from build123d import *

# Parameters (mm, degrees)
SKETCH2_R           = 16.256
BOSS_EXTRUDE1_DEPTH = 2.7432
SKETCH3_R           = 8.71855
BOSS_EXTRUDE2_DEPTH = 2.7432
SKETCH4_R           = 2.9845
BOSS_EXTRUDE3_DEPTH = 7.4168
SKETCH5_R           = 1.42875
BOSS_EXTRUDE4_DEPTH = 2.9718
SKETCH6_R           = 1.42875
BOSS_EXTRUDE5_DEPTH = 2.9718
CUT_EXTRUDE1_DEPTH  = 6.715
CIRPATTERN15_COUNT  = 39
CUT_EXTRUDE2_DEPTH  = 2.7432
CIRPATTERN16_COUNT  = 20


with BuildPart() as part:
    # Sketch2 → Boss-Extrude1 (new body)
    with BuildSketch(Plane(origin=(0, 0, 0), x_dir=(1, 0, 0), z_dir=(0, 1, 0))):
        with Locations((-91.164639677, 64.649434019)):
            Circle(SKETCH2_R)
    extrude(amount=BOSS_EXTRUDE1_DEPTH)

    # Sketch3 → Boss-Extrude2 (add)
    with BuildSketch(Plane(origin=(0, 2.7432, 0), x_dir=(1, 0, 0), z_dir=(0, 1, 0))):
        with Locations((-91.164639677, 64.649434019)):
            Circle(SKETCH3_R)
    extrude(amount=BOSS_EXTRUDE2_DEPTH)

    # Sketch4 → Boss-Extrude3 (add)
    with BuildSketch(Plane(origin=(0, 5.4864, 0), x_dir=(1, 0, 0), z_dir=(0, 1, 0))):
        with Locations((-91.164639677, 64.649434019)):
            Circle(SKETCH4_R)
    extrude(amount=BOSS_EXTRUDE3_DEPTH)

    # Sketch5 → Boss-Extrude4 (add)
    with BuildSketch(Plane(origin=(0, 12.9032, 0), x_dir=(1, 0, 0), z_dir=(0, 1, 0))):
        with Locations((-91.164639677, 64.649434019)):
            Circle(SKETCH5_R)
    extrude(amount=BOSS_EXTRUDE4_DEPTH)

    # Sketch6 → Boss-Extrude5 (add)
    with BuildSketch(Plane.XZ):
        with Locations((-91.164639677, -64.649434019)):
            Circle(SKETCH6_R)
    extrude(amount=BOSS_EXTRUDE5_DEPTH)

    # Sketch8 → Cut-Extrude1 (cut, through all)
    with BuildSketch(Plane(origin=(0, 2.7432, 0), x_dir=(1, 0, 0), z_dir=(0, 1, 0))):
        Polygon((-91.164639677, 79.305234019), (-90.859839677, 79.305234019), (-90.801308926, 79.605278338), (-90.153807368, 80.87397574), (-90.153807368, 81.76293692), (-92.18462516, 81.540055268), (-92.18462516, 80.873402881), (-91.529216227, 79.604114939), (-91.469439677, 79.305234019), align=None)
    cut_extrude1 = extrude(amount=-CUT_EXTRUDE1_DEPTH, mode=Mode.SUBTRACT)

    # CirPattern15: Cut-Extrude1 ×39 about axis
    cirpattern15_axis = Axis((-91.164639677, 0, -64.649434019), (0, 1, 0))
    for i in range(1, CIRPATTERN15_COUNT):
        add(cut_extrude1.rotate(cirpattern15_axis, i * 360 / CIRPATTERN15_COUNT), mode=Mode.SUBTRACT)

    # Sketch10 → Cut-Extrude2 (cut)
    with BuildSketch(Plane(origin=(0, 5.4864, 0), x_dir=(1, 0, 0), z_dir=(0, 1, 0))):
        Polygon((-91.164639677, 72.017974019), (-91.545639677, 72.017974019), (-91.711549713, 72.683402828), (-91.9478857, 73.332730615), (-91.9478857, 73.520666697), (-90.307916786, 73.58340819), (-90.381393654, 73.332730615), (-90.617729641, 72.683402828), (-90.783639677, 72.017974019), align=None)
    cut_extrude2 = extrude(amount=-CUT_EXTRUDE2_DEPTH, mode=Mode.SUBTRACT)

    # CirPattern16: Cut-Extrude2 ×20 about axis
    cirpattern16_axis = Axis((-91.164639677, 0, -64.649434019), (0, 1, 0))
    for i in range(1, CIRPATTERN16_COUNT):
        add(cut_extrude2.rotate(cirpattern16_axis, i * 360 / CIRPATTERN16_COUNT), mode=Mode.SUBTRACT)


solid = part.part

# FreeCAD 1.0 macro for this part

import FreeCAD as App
import Part
import Sketcher
Q = App.Units.Quantity

doc = App.newDocument("Part")
params = doc.addObject("Spreadsheet::Sheet", "Params")
for row, (alias, value) in enumerate([
    ("sketch1_diameter", "1.28 in"),
    ("pad1_length", "0.108 in"),
    ("pad2_length", "0.108 in"),
    ("sketch3_diameter", "0.235 in"),
    ("pad3_length", "0.292 in"),
    ("pad4_length", "0.117 in"),
    ("pad5_length", "0.117 in"),
    ("sketch6_width", "0.024 in"),
    ("sketch6_length", "0.012 in"),
    ("sketch7_width", "0.03 in"),
    ("sketch7_length", "0.027 in"),
    ("pocket2_length", "0.108 in"),
], start=1):
    params.set(f"A{row}", alias)
    params.set(f"B{row}", "=" + value)
    params.setAlias(f"B{row}", alias)

body = doc.addObject("PartDesign::Body", "Body")

# Sketch on XZ plane
sketch1 = body.newObject("Sketcher::SketchObject", "Sketch")
sketch1.AttachmentSupport = (doc.getObject("XZ_Plane"), [""])
sketch1.MapMode = "FlatFace"
sketch1.addGeometry(Part.Circle(App.Vector(-91, -65, 0), App.Vector(0, 0, 1), 16), False)
sketch1.addConstraint([
    Sketcher.Constraint("Diameter", 0, Q("1.28 in")),
    Sketcher.Constraint("DistanceX", 0, 3, -1, 1, 91.16464),
    Sketcher.Constraint("DistanceY", 0, 3, -1, 1, 64.649434),
])
sketch1.setExpression("Constraints[0]", "Params.sketch1_diameter")
pad1 = body.newObject("PartDesign::Pad", "Pad")
pad1.Profile = sketch1
pad1.setExpression("Length", "Params.pad1_length")
pad1.Reversed = True

# Sketch on XZ plane
sketch2 = body.newObject("Sketcher::SketchObject", "Sketch001")
sketch2.AttachmentSupport = (doc.getObject("XZ_Plane"), [""])
sketch2.MapMode = "FlatFace"
sketch2.AttachmentOffset = App.Placement(App.Vector(0, 0, -0.108 * 25.4), App.Rotation())
sketch2.addGeometry(Part.Circle(App.Vector(-91, -65, 0), App.Vector(0, 0, 1), 9), False)
sketch2.addConstraint([
    Sketcher.Constraint("Diameter", 0, Q("0.6865 in")),
    Sketcher.Constraint("DistanceX", 0, 3, -1, 1, 91.16464),
    Sketcher.Constraint("DistanceY", 0, 3, -1, 1, 64.649434),
])
pad2 = body.newObject("PartDesign::Pad", "Pad001")
pad2.Profile = sketch2
pad2.setExpression("Length", "Params.pad2_length")
pad2.Reversed = True

# Sketch on XZ plane
sketch3 = body.newObject("Sketcher::SketchObject", "Sketch002")
sketch3.AttachmentSupport = (doc.getObject("XZ_Plane"), [""])
sketch3.MapMode = "FlatFace"
sketch3.AttachmentOffset = App.Placement(App.Vector(0, 0, -0.216 * 25.4), App.Rotation())
sketch3.addGeometry(Part.Circle(App.Vector(-91.2, -64.6, 0), App.Vector(0, 0, 1), 3), False)
sketch3.addConstraint([
    Sketcher.Constraint("Diameter", 0, Q("0.235 in")),
    Sketcher.Constraint("DistanceX", 0, 3, -1, 1, 91.16464),
    Sketcher.Constraint("DistanceY", 0, 3, -1, 1, 64.649434),
])
sketch3.setExpression("Constraints[0]", "Params.sketch3_diameter")
pad3 = body.newObject("PartDesign::Pad", "Pad002")
pad3.Profile = sketch3
pad3.setExpression("Length", "Params.pad3_length")
pad3.Reversed = True

# Sketch on XZ plane
sketch4 = body.newObject("Sketcher::SketchObject", "Sketch003")
sketch4.AttachmentSupport = (doc.getObject("XZ_Plane"), [""])
sketch4.MapMode = "FlatFace"
sketch4.AttachmentOffset = App.Placement(App.Vector(0, 0, -0.508 * 25.4), App.Rotation())
sketch4.addGeometry(Part.Circle(App.Vector(-91.2, -64.6, 0), App.Vector(0, 0, 1), 1.4), False)
sketch4.addConstraint([
    Sketcher.Constraint("Diameter", 0, Q("0.1125 in")),
    Sketcher.Constraint("DistanceX", 0, 3, -1, 1, 91.16464),
    Sketcher.Constraint("DistanceY", 0, 3, -1, 1, 64.649434),
])
pad4 = body.newObject("PartDesign::Pad", "Pad003")
pad4.Profile = sketch4
pad4.setExpression("Length", "Params.pad4_length")
pad4.Reversed = True

# Sketch on XZ plane
sketch5 = body.newObject("Sketcher::SketchObject", "Sketch004")
sketch5.AttachmentSupport = (doc.getObject("XZ_Plane"), [""])
sketch5.MapMode = "FlatFace"
sketch5.addGeometry(Part.Circle(App.Vector(-91.2, -64.6, 0), App.Vector(0, 0, 1), 1.4), False)
sketch5.addConstraint([
    Sketcher.Constraint("Diameter", 0, Q("0.1125 in")),
    Sketcher.Constraint("DistanceX", 0, 3, -1, 1, 91.16464),
    Sketcher.Constraint("DistanceY", 0, 3, -1, 1, 64.649434),
])
pad5 = body.newObject("PartDesign::Pad", "Pad004")
pad5.Profile = sketch5
pad5.setExpression("Length", "Params.pad5_length")

# Sketch on XZ plane
sketch6 = body.newObject("Sketcher::SketchObject", "Sketch005")
sketch6.AttachmentSupport = (doc.getObject("XZ_Plane"), [""])
sketch6.MapMode = "FlatFace"
sketch6.AttachmentOffset = App.Placement(App.Vector(0, 0, -0.108 * 25.4), App.Rotation())
sketch6.addGeometry([
    Part.LineSegment(App.Vector(-90.86, -79.31, 0), App.Vector(-90.8, -79.61, 0)),  # 0
    Part.LineSegment(App.Vector(-90.8, -79.61, 0), App.Vector(-90.15, -80.87, 0)),  # 1
    Part.LineSegment(App.Vector(-90.15, -80.87, 0), App.Vector(-90.15, -81.76, 0)),  # 2
    Part.LineSegment(App.Vector(-90.15, -81.76, 0), App.Vector(-92.18, -81.54, 0)),  # 3
    Part.LineSegment(App.Vector(-92.18, -81.54, 0), App.Vector(-92.18, -80.87, 0)),  # 4
    Part.LineSegment(App.Vector(-92.18, -80.87, 0), App.Vector(-91.53, -79.6, 0)),  # 5
    Part.LineSegment(App.Vector(-91.53, -79.6, 0), App.Vector(-91.47, -79.31, 0)),  # 6
    Part.LineSegment(App.Vector(-91.47, -79.31, 0), App.Vector(-90.86, -79.31, 0)),  # 7
], False)
sketch6.addConstraint([
    Sketcher.Constraint("Coincident", 0, 2, 1, 1),
    Sketcher.Constraint("Coincident", 1, 2, 2, 1),
    Sketcher.Constraint("Coincident", 2, 2, 3, 1),
    Sketcher.Constraint("Coincident", 3, 2, 4, 1),
    Sketcher.Constraint("Coincident", 4, 2, 5, 1),
    Sketcher.Constraint("Coincident", 5, 2, 6, 1),
    Sketcher.Constraint("Coincident", 6, 2, 7, 1),
    Sketcher.Constraint("Coincident", 7, 2, 0, 1),
    Sketcher.Constraint("Vertical", 2),
    Sketcher.Constraint("Vertical", 4),
    Sketcher.Constraint("Horizontal", 7),
    Sketcher.Constraint("DistanceX", 7, 1, 7, 2, Q("0.024 in")),
    Sketcher.Constraint("Angle", 5, Q("62.69 deg")),
    Sketcher.Constraint("Angle", 6, Q("78.69 deg")),
    Sketcher.Constraint("Distance", 6, Q("0.012 in")),
    Sketcher.Constraint("Distance", 0, 0.3057),
    Sketcher.Constraint("DistanceY", 2, 2, 2, 1, 0.888961),
    Sketcher.Constraint("DistanceX", 0, 2, 1, 2, 0.647502),
    Sketcher.Constraint("Distance", 3, 2.043012),
    Sketcher.Constraint("DistanceY", 4, 1, 4, 2, 0.666652),
    Sketcher.Constraint("DistanceX", 0, 2, -1, 1, 90.801309),
    Sketcher.Constraint("DistanceY", 0, 2, -1, 1, 79.605278),
    Sketcher.Constraint("DistanceX", 6, 2, -1, 1, 91.46944),
    Sketcher.Constraint("DistanceY", 2, 2, 0, 2, 2.157659),
])
sketch6.setExpression("Constraints[11]", "Params.sketch6_width")
sketch6.setExpression("Constraints[14]", "Params.sketch6_length")
pocket1 = body.newObject("PartDesign::Pocket", "Pocket")
pocket1.Profile = sketch6
pocket1.Type = "ThroughAll"
pocket1.Reversed = True
doc.recompute()

datumline = body.newObject("PartDesign::Line", "DatumLine")
datumline.Placement = App.Placement(App.Vector(-91.16464, 0, -64.649434), App.Rotation(App.Vector(0, 0, 1), App.Vector(0, 1, 0)))
polarpattern = body.newObject("PartDesign::PolarPattern", "PolarPattern")
polarpattern.Originals = [pocket1]
polarpattern.Axis = (datumline, [""])
polarpattern.Angle = 360
polarpattern.Occurrences = 39
body.Tip = polarpattern

# Sketch on XZ plane
sketch7 = body.newObject("Sketcher::SketchObject", "Sketch006")
sketch7.AttachmentSupport = (doc.getObject("XZ_Plane"), [""])
sketch7.MapMode = "FlatFace"
sketch7.AttachmentOffset = App.Placement(App.Vector(0, 0, -0.216 * 25.4), App.Rotation())
sketch7.addGeometry([
    Part.LineSegment(App.Vector(-91.55, -72.02, 0), App.Vector(-90.78, -72.02, 0)),  # 0
    Part.LineSegment(App.Vector(-90.78, -72.02, 0), App.Vector(-90.62, -72.68, 0)),  # 1
    Part.LineSegment(App.Vector(-90.62, -72.68, 0), App.Vector(-90.38, -73.33, 0)),  # 2
    Part.LineSegment(App.Vector(-90.38, -73.33, 0), App.Vector(-90.31, -73.58, 0)),  # 3
    Part.LineSegment(App.Vector(-90.31, -73.58, 0), App.Vector(-91.95, -73.52, 0)),  # 4
    Part.LineSegment(App.Vector(-91.95, -73.52, 0), App.Vector(-91.95, -73.33, 0)),  # 5
    Part.LineSegment(App.Vector(-91.95, -73.33, 0), App.Vector(-91.71, -72.68, 0)),  # 6
    Part.LineSegment(App.Vector(-91.71, -72.68, 0), App.Vector(-91.55, -72.02, 0)),  # 7
], False)
sketch7.addConstraint([
    Sketcher.Constraint("Coincident", 0, 2, 1, 1),
    Sketcher.Constraint("Coincident", 1, 2, 2, 1),
    Sketcher.Constraint("Coincident", 2, 2, 3, 1),
    Sketcher.Constraint("Coincident", 3, 2, 4, 1),
    Sketcher.Constraint("Coincident", 4, 2, 5, 1),
    Sketcher.Constraint("Coincident", 5, 2, 6, 1),
    Sketcher.Constraint("Coincident", 6, 2, 7, 1),
    Sketcher.Constraint("Coincident", 7, 2, 0, 1),
    Sketcher.Constraint("Horizontal", 0),
    Sketcher.Constraint("Vertical", 5),
    Sketcher.Constraint("Horizontal", 2, 2, 5, 2),
    Sketcher.Constraint("Horizontal", 1, 2, 6, 2),
    Sketcher.Constraint("Equal", 2, 6),
    Sketcher.Constraint("Equal", 1, 7),
    Sketcher.Constraint("Angle", 1, Q("-76 deg")),
    Sketcher.Constraint("Angle", 2, Q("-70 deg")),
    Sketcher.Constraint("DistanceX", 0, 1, 0, 2, Q("0.03 in")),
    Sketcher.Constraint("Distance", 1, Q("0.027 in")),
    Sketcher.Constraint("Distance", 2, 0.691),
    Sketcher.Constraint("Distance", 4, 1.641169),
    Sketcher.Constraint("DistanceY", 5, 1, 5, 2, 0.187936),
    Sketcher.Constraint("DistanceX", 0, 2, -1, 1, 90.78364),
    Sketcher.Constraint("DistanceY", 2, 2, -1, 1, 73.332731),
    Sketcher.Constraint("DistanceY", 3, 2, -1, 1, 73.583408),
])
sketch7.setExpression("Constraints[16]", "Params.sketch7_width")
sketch7.setExpression("Constraints[17]", "Params.sketch7_length")
pocket2 = body.newObject("PartDesign::Pocket", "Pocket001")
pocket2.Profile = sketch7
pocket2.setExpression("Length", "Params.pocket2_length")
pocket2.Reversed = True
doc.recompute()

datumline2 = body.newObject("PartDesign::Line", "DatumLine001")
datumline2.Placement = App.Placement(App.Vector(-91.16464, 0, -64.649434), App.Rotation(App.Vector(0, 0, 1), App.Vector(0, 1, 0)))
polarpattern2 = body.newObject("PartDesign::PolarPattern", "PolarPattern001")
polarpattern2.Originals = [pocket2]
polarpattern2.Axis = (datumline2, [""])
polarpattern2.Angle = 360
polarpattern2.Occurrences = 20
body.Tip = polarpattern2

doc.recompute()
